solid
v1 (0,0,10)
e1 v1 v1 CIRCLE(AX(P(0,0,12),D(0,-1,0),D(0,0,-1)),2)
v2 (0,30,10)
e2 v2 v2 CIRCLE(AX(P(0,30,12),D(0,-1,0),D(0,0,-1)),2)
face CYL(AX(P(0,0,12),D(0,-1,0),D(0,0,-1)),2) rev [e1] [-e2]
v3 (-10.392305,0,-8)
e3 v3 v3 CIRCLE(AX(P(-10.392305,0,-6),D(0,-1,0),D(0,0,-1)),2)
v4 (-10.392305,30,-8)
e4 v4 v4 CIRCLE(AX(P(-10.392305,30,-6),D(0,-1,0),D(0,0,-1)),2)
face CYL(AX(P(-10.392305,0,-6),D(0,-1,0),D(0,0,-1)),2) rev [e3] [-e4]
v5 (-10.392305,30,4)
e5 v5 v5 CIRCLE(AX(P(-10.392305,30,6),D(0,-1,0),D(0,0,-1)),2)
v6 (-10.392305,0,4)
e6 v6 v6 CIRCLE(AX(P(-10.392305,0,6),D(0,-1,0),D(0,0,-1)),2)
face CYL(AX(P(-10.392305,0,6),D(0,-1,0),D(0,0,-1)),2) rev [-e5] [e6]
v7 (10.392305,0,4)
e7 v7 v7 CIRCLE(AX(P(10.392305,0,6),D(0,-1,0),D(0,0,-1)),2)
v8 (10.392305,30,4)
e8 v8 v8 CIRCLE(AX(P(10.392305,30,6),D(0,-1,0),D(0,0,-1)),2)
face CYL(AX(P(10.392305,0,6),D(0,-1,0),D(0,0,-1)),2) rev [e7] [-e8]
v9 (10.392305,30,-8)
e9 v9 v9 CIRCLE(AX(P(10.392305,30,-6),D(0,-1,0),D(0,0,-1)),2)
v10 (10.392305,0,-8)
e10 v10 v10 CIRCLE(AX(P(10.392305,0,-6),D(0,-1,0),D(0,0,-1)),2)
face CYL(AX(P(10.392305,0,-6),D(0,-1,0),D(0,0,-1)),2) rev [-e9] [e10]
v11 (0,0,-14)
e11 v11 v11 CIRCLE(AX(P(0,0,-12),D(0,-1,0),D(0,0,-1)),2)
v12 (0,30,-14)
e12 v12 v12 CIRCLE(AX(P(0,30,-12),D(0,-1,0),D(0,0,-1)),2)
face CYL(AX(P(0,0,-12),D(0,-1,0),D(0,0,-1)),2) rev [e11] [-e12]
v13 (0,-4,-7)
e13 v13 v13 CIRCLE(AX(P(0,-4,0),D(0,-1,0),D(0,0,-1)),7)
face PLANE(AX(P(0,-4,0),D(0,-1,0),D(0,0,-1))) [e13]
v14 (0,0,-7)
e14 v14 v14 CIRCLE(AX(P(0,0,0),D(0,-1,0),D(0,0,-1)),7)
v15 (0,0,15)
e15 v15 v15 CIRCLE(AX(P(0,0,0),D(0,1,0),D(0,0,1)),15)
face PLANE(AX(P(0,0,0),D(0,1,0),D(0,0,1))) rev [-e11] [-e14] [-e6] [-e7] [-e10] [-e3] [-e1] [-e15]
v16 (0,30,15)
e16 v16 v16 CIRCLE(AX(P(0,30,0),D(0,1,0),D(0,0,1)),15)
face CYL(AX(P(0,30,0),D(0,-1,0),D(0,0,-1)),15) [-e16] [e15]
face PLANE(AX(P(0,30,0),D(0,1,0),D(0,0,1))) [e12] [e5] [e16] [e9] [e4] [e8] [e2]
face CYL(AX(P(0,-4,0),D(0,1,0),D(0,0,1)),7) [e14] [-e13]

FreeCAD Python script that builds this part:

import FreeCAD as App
import Part
import Sketcher

doc = App.newDocument("Part")
body = doc.addObject("PartDesign::Body", "Body")

sketch1 = body.newObject("Sketcher::SketchObject", "Sketch")
sketch1.AttachmentSupport = (doc.getObject("XZ_Plane"), [""])
sketch1.MapMode = "FlatFace"
sketch1.addGeometry(Part.Circle(App.Vector(0, 0, 0), App.Vector(0, 0, 1), 15), False)
sketch1.addConstraint([
    Sketcher.Constraint("Coincident", 0, 3, -1, 1),
    Sketcher.Constraint("Diameter", 0, 30.0),
])
pad1 = body.newObject("PartDesign::Pad", "Pad")
pad1.Profile = sketch1
pad1.Length = 30
pad1.Reversed = True

sketch2 = body.newObject("Sketcher::SketchObject", "Sketch001")
sketch2.AttachmentSupport = (doc.getObject("XZ_Plane"), [""])
sketch2.MapMode = "FlatFace"
sketch2.addGeometry(Part.Circle(App.Vector(0, 0, 0), App.Vector(0, 0, 1), 7), False)
sketch2.addConstraint([
    Sketcher.Constraint("Coincident", 0, 3, -1, 1),
    Sketcher.Constraint("Diameter", 0, 14.0),
])
pad2 = body.newObject("PartDesign::Pad", "Pad001")
pad2.Profile = sketch2
pad2.Length = 4

sketch3 = body.newObject("Sketcher::SketchObject", "Sketch002")
sketch3.AttachmentSupport = (doc.getObject("XZ_Plane"), [""])
sketch3.MapMode = "FlatFace"
sketch3.addGeometry(Part.Circle(App.Vector(0, 12, 0), App.Vector(0, 0, 1), 2), False)
sketch3.addConstraint([
    Sketcher.Constraint("PointOnObject", 0, 3, -2),
    Sketcher.Constraint("Diameter", 0, 4.0),
    Sketcher.Constraint("DistanceY", -1, 1, 0, 3, 12.0),
])
doc.recompute()
hole = body.newObject("PartDesign::Hole", "Hole")
hole.Profile = sketch3
hole.ThreadType = "None"
hole.Diameter = 4
hole.DepthType = "ThroughAll"
doc.recompute()

polarpattern = body.newObject("PartDesign::PolarPattern", "PolarPattern")
polarpattern.Originals = [hole]
polarpattern.Axis = (doc.getObject("Y_Axis"), [""])
polarpattern.Angle = 360
polarpattern.Occurrences = 6
body.Tip = polarpattern

doc.recompute()
